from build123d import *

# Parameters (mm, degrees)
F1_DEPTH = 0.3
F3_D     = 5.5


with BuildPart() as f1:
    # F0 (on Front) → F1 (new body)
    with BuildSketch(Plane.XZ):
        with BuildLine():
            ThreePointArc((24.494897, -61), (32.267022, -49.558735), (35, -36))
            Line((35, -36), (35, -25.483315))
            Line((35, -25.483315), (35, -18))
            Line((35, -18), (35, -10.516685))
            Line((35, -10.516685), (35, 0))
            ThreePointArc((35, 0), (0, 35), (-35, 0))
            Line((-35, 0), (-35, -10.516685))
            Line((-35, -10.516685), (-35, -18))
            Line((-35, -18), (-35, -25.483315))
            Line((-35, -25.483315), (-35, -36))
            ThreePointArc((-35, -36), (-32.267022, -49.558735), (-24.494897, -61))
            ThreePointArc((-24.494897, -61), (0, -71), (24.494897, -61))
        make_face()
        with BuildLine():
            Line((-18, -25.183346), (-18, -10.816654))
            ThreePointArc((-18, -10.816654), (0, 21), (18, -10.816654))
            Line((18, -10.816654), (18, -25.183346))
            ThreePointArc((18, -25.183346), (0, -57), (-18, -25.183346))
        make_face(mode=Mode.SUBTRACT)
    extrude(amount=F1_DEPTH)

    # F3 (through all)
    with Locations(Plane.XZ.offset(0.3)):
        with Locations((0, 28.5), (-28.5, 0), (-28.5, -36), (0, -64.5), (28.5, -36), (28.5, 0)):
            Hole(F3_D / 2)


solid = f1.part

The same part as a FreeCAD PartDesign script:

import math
import FreeCAD as App
import Part
import Sketcher
from FreeCAD import Vector

doc = App.newDocument("Part")
body = doc.addObject("PartDesign::Body", "Body")

# Sketch on XZ plane
sketch1 = doc.addObject("Sketcher::SketchObject", "Sketch")
body.addObject(sketch1)
sketch1.AttachmentSupport = (doc.XZ_Plane, [""])
sketch1.MapMode = "FlatFace"
sketch1.addGeometry([
    Part.ArcOfCircle(Part.Circle(Vector(0.000003, -36.000001, 0), Vector(0, 0, 1), 34.999997), math.radians(-45.584694), math.radians(0.000001)),  # 0
    Part.LineSegment(Vector(35, -36, 0), Vector(35, 0, 0)),  # 1
    Part.ArcOfCircle(Part.Circle(Vector(0, 0, 0), Vector(0, 0, 1), 35), math.radians(0), math.radians(180)),  # 2
    Part.LineSegment(Vector(-35, 0, 0), Vector(-35, -36, 0)),  # 3
    Part.ArcOfCircle(Part.Circle(Vector(-0.000003, -36.000001, 0), Vector(0, 0, 1), 34.999997), math.radians(179.999999), math.radians(225.584694)),  # 4
    Part.ArcOfCircle(Part.Circle(Vector(0, -36.000001, 0), Vector(0, 0, 1), 34.999999), math.radians(-134.415309), math.radians(-45.584691)),  # 5
    Part.ArcOfCircle(Part.Circle(Vector(0, -36, 0), Vector(0, 0, 1), 21), math.radians(148.997281), math.radians(391.002719)),  # 6
    Part.LineSegment(Vector(-18, -25.183346, 0), Vector(-18, -10.816654, 0)),  # 7
    Part.ArcOfCircle(Part.Circle(Vector(0, 0, 0), Vector(0, 0, 1), 21), math.radians(-31.002719), math.radians(211.002719)),  # 8
    Part.LineSegment(Vector(18, -10.816654, 0), Vector(18, -25.183346, 0)),  # 9
], False)
sketch1.addConstraint([
    Sketcher.Constraint("Tangent", 0, 2, 1, 1),
    Sketcher.Constraint("Tangent", 1, 2, 2, 1),
    Sketcher.Constraint("Tangent", 2, 2, 3, 1),
    Sketcher.Constraint("Tangent", 3, 2, 4, 1),
    Sketcher.Constraint("Tangent", 4, 2, 5, 1),
    Sketcher.Constraint("Tangent", 5, 2, 0, 1),
    Sketcher.Constraint("Coincident", 6, 1, 7, 1),
    Sketcher.Constraint("Coincident", 7, 2, 8, 2),
    Sketcher.Constraint("Coincident", 8, 1, 9, 1),
    Sketcher.Constraint("Coincident", 9, 2, 6, 2),
    Sketcher.Constraint("Vertical", 1),
    Sketcher.Constraint("Vertical", 3),
    Sketcher.Constraint("Vertical", 7),
    Sketcher.Constraint("Vertical", 9),
    Sketcher.Constraint("Coincident", 2, 3, -1, 1),
    Sketcher.Constraint("Coincident", 8, 3, -1, 1),
    Sketcher.Constraint("Coincident", 4, 3, 0, 3),
    Sketcher.Constraint("Coincident", 6, 3, 0, 3),
    Sketcher.Constraint("Equal", 6, 8),
    Sketcher.Constraint("Horizontal", 4, 2, 5, 2),
    Sketcher.Constraint("Horizontal", 7, 2, 8, 1),
    Sketcher.Constraint("Radius", 2, 35.0),
    Sketcher.Constraint("Radius", 6, 21.0),
    Sketcher.Constraint("DistanceY", 1, 1, 1, 2, 36.0),
    Sketcher.Constraint("DistanceY", 4, 2, -1, 1, 61.0),
    Sketcher.Constraint("DistanceX", 6, 1, -1, 1, 18.0),
])
pad1 = doc.addObject("PartDesign::Pad", "Pad")
body.addObject(pad1)
pad1.Profile = sketch1
pad1.Length = 0.3

# Sketch on XZ plane
sketch2 = doc.addObject("Sketcher::SketchObject", "Sketch001")
body.addObject(sketch2)
sketch2.AttachmentSupport = (doc.XZ_Plane, [""])
sketch2.MapMode = "FlatFace"
sketch2.AttachmentOffset = App.Placement(Vector(0, 0, 0.3), App.Rotation())
sketch2.addGeometry([
    Part.Circle(Vector(0, 28.5, 0), Vector(0, 0, 1), 2.75),  # 0
    Part.Circle(Vector(-28.5, 0, 0), Vector(0, 0, 1), 2.75),  # 1
    Part.Circle(Vector(-28.5, -36, 0), Vector(0, 0, 1), 2.75),  # 2
    Part.Circle(Vector(0, -64.5, 0), Vector(0, 0, 1), 2.75),  # 3
    Part.Circle(Vector(28.5, -36, 0), Vector(0, 0, 1), 2.75),  # 4
    Part.Circle(Vector(28.5, 0, 0), Vector(0, 0, 1), 2.75),  # 5
], False)
sketch2.addConstraint([
    Sketcher.Constraint("Equal", 0, 1),
    Sketcher.Constraint("Equal", 1, 2),
    Sketcher.Constraint("Equal", 2, 3),
    Sketcher.Constraint("Equal", 3, 4),
    Sketcher.Constraint("Equal", 4, 5),
    Sketcher.Constraint("Symmetric", 1, 3, 5, 3, -1, 1),
    Sketcher.Constraint("Symmetric", 2, 3, 4, 3, -2),
    Sketcher.Constraint("PointOnObject", 0, 3, -2),
    Sketcher.Constraint("PointOnObject", 1, 3, -1),
    Sketcher.Constraint("PointOnObject", 3, 3, -2),
    Sketcher.Constraint("Vertical", 1, 3, 2, 3),
    Sketcher.Constraint("Diameter", 0, 5.5),
    Sketcher.Constraint("DistanceY", 2, 3, -1, 1, 36.0),
    Sketcher.Constraint("DistanceY", 3, 3, 0, 3, 93.0),
    Sketcher.Constraint("DistanceX", 2, 3, 4, 3, 57.0),
    Sketcher.Constraint("DistanceY", -1, 1, 0, 3, 28.5),
])
doc.recompute()
hole = doc.addObject("PartDesign::Hole", "Hole")
body.addObject(hole)
hole.Profile = sketch2
hole.ThreadType = "None"
hole.Diameter = 5.5
hole.DepthType = "ThroughAll"

doc.recompute()
